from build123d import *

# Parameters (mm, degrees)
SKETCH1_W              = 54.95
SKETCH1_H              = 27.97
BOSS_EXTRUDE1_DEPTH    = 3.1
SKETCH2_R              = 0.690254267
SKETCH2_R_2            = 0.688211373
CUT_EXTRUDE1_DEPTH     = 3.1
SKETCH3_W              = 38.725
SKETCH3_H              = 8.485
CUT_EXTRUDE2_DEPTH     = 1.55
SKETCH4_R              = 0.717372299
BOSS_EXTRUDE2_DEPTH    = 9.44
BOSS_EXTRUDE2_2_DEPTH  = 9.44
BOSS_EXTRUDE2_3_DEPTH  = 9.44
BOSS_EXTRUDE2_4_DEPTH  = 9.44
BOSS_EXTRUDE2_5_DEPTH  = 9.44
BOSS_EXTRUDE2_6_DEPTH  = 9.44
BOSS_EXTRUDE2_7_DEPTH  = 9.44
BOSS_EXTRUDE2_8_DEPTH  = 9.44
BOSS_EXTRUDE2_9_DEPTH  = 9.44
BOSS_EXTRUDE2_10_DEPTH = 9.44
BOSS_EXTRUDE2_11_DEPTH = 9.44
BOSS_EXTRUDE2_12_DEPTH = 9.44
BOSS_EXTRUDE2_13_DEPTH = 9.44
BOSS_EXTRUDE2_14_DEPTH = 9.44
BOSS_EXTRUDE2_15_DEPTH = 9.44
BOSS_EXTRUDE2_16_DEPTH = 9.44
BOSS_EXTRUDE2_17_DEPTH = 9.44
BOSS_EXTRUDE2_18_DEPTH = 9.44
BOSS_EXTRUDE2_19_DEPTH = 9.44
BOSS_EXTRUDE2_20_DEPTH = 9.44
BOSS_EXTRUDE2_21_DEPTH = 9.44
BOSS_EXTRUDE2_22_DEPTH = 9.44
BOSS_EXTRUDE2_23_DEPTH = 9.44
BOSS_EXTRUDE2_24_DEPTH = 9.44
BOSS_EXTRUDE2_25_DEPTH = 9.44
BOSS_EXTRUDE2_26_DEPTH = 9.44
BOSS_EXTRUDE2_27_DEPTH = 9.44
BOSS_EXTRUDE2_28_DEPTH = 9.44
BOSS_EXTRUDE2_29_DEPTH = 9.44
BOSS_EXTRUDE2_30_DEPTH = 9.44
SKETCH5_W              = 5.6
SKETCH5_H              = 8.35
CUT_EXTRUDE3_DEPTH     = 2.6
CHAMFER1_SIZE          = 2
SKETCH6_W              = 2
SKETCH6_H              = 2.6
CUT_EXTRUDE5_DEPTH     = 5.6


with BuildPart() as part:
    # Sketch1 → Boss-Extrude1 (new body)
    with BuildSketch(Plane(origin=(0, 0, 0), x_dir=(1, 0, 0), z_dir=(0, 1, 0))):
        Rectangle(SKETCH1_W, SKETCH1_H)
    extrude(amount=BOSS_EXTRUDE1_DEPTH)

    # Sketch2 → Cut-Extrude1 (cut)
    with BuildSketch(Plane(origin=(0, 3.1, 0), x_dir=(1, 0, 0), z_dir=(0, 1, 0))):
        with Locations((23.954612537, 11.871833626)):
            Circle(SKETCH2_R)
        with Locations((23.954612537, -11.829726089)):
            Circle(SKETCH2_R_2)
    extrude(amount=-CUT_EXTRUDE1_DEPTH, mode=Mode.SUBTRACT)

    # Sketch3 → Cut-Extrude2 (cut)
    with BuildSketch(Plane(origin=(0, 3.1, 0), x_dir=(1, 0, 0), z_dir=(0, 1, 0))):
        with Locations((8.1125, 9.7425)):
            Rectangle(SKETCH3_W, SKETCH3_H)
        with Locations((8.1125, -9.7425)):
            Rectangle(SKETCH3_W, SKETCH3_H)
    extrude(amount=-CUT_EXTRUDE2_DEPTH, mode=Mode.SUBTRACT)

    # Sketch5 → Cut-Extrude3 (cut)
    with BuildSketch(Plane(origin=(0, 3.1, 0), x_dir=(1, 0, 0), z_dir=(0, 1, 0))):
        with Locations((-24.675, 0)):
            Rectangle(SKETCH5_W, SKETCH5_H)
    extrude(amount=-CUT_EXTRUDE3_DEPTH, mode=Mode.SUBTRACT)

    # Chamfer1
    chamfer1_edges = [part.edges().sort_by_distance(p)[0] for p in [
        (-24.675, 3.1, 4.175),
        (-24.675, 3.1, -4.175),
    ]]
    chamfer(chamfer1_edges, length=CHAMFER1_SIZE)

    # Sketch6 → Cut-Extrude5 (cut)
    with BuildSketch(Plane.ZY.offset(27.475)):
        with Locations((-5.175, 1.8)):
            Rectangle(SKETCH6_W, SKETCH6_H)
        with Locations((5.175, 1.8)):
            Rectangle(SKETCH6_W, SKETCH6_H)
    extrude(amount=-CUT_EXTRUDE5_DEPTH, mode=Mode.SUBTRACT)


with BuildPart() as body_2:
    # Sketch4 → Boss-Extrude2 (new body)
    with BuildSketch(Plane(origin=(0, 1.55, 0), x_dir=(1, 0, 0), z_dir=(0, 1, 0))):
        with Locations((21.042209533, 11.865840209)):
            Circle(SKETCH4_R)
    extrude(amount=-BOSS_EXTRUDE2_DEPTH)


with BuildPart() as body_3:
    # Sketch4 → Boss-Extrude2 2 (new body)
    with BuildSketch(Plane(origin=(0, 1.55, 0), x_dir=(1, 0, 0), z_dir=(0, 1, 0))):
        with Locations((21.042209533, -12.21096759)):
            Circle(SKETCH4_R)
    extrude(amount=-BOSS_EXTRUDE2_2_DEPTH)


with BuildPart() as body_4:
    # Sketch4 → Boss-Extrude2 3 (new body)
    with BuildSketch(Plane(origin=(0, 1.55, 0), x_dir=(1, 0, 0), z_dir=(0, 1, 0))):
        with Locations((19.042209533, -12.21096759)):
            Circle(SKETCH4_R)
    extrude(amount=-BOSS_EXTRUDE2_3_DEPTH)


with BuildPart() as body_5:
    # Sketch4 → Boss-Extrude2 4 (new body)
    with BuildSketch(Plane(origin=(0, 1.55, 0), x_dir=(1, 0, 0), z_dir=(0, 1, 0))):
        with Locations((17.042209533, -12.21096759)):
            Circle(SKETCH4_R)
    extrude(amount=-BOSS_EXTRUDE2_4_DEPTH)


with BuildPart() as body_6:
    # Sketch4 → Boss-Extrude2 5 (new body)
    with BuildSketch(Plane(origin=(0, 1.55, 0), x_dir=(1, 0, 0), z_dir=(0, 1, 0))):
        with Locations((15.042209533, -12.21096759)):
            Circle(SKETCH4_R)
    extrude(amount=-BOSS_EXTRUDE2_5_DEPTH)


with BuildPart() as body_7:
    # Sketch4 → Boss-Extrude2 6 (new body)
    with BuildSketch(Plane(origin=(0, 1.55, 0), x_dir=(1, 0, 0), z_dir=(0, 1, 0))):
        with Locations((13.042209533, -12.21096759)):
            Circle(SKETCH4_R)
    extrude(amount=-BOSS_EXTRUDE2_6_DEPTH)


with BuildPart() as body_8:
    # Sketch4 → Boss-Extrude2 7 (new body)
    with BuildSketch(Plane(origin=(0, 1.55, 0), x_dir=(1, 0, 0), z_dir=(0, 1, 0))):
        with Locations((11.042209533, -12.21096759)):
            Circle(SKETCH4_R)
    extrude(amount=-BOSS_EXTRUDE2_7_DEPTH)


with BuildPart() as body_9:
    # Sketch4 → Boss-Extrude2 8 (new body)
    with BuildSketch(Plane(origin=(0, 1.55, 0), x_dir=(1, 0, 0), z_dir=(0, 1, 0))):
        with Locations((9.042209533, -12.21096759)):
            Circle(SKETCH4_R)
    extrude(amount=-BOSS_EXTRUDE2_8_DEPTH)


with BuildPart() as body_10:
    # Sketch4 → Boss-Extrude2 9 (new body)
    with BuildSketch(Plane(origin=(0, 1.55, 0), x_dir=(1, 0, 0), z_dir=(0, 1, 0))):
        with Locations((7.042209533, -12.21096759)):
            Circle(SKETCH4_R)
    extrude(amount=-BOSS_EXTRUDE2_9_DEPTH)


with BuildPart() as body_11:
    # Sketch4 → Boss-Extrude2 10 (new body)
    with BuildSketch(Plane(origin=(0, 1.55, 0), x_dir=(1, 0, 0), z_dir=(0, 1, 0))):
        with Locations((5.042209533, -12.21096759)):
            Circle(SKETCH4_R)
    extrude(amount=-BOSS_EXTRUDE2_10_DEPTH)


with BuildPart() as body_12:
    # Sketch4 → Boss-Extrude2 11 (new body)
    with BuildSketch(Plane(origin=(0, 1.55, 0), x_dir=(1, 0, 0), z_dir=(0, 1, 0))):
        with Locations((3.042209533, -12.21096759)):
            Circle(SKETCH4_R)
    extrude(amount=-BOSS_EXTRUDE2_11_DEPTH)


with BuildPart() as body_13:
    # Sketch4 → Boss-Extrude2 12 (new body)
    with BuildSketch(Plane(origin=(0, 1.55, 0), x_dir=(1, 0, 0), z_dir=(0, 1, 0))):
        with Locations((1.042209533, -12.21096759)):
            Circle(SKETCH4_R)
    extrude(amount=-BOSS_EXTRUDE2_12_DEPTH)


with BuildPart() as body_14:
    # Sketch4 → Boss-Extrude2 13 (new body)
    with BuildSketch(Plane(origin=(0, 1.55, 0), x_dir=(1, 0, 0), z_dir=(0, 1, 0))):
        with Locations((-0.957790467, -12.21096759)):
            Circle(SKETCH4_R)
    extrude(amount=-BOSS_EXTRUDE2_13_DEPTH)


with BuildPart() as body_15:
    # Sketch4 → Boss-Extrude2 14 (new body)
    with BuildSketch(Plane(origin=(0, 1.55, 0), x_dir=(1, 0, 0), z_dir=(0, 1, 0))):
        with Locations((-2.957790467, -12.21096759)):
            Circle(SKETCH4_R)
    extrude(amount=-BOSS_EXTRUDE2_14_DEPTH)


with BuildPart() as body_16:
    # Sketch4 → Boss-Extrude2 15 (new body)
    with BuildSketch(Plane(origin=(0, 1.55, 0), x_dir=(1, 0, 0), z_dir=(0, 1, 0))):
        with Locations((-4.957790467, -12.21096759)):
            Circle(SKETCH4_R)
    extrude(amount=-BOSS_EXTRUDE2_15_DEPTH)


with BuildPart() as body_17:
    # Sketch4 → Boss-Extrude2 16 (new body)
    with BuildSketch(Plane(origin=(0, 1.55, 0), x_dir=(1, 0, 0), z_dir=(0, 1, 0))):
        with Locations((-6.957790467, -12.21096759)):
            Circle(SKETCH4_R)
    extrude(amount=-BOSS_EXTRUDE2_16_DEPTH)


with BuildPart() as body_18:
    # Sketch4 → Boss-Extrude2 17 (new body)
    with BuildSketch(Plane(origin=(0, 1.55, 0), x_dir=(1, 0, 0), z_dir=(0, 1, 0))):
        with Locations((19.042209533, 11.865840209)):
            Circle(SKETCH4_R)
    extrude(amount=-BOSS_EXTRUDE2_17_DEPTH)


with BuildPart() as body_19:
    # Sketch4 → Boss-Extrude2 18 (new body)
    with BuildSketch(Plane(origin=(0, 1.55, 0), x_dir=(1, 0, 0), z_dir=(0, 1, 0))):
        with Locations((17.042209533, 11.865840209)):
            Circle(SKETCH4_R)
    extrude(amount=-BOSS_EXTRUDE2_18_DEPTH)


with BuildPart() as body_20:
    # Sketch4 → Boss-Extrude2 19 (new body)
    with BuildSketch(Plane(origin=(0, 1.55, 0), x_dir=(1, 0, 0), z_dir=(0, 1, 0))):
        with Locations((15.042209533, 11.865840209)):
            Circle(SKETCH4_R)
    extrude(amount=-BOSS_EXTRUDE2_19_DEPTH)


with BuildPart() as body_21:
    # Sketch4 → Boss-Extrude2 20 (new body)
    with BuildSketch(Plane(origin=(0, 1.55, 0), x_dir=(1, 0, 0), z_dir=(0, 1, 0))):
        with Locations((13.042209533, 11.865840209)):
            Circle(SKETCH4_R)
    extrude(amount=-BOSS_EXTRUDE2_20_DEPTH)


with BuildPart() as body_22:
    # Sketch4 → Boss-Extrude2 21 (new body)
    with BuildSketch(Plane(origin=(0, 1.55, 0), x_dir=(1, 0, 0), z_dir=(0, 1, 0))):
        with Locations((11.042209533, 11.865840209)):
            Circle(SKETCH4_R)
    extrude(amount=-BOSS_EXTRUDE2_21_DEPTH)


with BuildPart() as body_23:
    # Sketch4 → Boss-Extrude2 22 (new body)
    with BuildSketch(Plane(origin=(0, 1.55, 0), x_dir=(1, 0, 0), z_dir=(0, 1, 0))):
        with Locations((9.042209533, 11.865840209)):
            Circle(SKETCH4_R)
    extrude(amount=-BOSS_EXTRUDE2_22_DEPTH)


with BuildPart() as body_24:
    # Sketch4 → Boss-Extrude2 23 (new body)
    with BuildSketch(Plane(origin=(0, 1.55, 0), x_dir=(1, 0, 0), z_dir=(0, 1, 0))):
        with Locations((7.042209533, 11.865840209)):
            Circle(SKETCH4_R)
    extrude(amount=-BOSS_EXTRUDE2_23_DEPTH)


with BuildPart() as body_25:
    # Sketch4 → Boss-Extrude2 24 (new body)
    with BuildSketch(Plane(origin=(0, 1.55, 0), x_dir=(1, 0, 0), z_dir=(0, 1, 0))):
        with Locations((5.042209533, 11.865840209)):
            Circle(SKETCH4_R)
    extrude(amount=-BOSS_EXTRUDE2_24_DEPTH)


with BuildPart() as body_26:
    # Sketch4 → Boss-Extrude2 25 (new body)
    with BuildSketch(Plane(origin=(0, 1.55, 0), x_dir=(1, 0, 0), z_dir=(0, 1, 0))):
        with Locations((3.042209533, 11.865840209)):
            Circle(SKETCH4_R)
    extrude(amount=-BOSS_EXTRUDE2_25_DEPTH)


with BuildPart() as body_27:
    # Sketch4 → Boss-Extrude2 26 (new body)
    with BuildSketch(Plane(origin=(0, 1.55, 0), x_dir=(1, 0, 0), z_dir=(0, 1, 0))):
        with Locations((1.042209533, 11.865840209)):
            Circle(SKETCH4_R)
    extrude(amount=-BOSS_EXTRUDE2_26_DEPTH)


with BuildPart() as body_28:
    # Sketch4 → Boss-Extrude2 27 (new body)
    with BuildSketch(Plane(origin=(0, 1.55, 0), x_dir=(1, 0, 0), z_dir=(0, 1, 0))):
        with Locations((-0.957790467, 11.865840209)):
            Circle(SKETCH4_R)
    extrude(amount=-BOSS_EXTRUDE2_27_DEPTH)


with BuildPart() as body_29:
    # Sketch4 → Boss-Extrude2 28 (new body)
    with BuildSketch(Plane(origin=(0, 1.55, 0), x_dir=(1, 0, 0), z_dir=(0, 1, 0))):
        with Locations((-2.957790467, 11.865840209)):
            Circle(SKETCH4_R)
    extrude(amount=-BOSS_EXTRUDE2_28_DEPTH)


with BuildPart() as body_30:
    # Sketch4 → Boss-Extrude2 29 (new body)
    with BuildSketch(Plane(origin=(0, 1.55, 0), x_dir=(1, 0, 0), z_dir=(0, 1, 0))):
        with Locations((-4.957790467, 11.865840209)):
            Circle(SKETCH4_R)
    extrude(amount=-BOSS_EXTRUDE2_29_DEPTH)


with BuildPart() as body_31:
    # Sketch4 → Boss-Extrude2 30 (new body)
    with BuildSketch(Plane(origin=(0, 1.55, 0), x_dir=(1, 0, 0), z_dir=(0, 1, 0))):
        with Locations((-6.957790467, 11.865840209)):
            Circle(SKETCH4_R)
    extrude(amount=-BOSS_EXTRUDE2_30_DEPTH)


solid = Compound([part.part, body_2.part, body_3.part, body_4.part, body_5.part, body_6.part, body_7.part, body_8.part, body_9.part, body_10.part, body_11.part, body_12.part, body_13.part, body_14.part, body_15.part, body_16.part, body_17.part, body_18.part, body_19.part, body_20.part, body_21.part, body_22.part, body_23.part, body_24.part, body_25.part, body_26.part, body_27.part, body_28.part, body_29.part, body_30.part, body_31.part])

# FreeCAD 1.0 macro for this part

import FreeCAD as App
import Part
import Sketcher

V = App.Vector


def edges_at(feature, points):
    """Names of the edges that pass closest to the given points."""
    edges = feature.Shape.Edges
    near = lambda p: min(range(len(edges)), key=lambda i: edges[i].distToShape(Part.Vertex(*p))[0])
    return sorted({f"Edge{near(p) + 1}" for p in points})

doc = App.newDocument("Part")
params = doc.addObject("Spreadsheet::Sheet", "Params")
for row, (alias, value) in enumerate([
    ("sketch1_width", "54.95 mm"),
    ("sketch1_height", "27.97 mm"),
    ("pad1_length", "3.1 mm"),
    ("pocket1_length", "3.1 mm"),
    ("pocket2_length", "1.55 mm"),
    ("sketch4_width", "5.6 mm"),
    ("sketch4_height", "8.35 mm"),
    ("pocket3_length", "2.6 mm"),
    ("chamfer_size", "2 mm"),
    ("sketch5_height", "2 mm"),
    ("sketch5_width", "2.6 mm"),
    ("pocket4_length", "5.6 mm"),
    ("pad2_length", "9.44 mm"),
    ("pad3_length", "9.44 mm"),
    ("pad4_length", "9.44 mm"),
    ("pad5_length", "9.44 mm"),
    ("pad6_length", "9.44 mm"),
    ("pad7_length", "9.44 mm"),
    ("pad8_length", "9.44 mm"),
    ("pad9_length", "9.44 mm"),
    ("pad10_length", "9.44 mm"),
    ("pad11_length", "9.44 mm"),
    ("pad12_length", "9.44 mm"),
    ("pad13_length", "9.44 mm"),
    ("pad14_length", "9.44 mm"),
    ("pad15_length", "9.44 mm"),
    ("pad16_length", "9.44 mm"),
    ("pad17_length", "9.44 mm"),
    ("pad18_length", "9.44 mm"),
    ("pad19_length", "9.44 mm"),
    ("pad20_length", "9.44 mm"),
    ("pad21_length", "9.44 mm"),
    ("pad22_length", "9.44 mm"),
    ("pad23_length", "9.44 mm"),
    ("pad24_length", "9.44 mm"),
    ("pad25_length", "9.44 mm"),
    ("pad26_length", "9.44 mm"),
    ("pad27_length", "9.44 mm"),
    ("pad28_length", "9.44 mm"),
    ("pad29_length", "9.44 mm"),
    ("pad30_length", "9.44 mm"),
    ("pad31_length", "9.44 mm"),
], start=1):
    params.set(f"A{row}", alias)
    params.set(f"B{row}", "=" + value)
    params.setAlias(f"B{row}", alias)

body = doc.addObject("PartDesign::Body", "Body")

# Sketch on XZ plane
sketch1 = body.newObject("Sketcher::SketchObject", "Sketch")
sketch1.AttachmentSupport = (doc.getObject("XZ_Plane"), [""])
sketch1.MapMode = "FlatFace"
sketch1.addGeometry([
    Part.LineSegment(V(-27.475, -13.985, 0), V(-27.475, 13.985, 0)),
    Part.LineSegment(V(-27.475, 13.985, 0), V(27.475, 13.985, 0)),
    Part.LineSegment(V(27.475, 13.985, 0), V(27.475, -13.985, 0)),
    Part.LineSegment(V(27.475, -13.985, 0), V(-27.475, -13.985, 0)),
], False)
sketch1.addConstraint([
    Sketcher.Constraint("Coincident", 0, 2, 1, 1),
    Sketcher.Constraint("Coincident", 1, 2, 2, 1),
    Sketcher.Constraint("Coincident", 2, 2, 3, 1),
    Sketcher.Constraint("Coincident", 3, 2, 0, 1),
    Sketcher.Constraint("Vertical", 0),
    Sketcher.Constraint("Horizontal", 1),
    Sketcher.Constraint("Vertical", 2),
    Sketcher.Constraint("Horizontal", 3),
    Sketcher.Constraint("Symmetric", 0, 2, 2, 2, -1, 1),
    Sketcher.Constraint("DistanceX", 1, 1, 1, 2, 54.95),
    Sketcher.Constraint("DistanceY", 0, 1, 0, 2, 27.97),
])
sketch1.setExpression("Constraints[9]", "Params.sketch1_width")
sketch1.setExpression("Constraints[10]", "Params.sketch1_height")
pad1 = body.newObject("PartDesign::Pad", "Pad")
pad1.Profile = sketch1
pad1.setExpression("Length", "Params.pad1_length")
pad1.Reversed = True

# Sketch on XZ plane
sketch2 = body.newObject("Sketcher::SketchObject", "Sketch001")
sketch2.AttachmentSupport = (doc.getObject("XZ_Plane"), [""])
sketch2.MapMode = "FlatFace"
sketch2.AttachmentOffset = App.Placement(V(0, 0, -3.1), App.Rotation())
sketch2.addGeometry([
    Part.Circle(V(23.954613, -11.871834, 0), V(0, 0, 1), 0.690254),
    Part.Circle(V(23.954613, 11.829726, 0), V(0, 0, 1), 0.688211),
], False)
sketch2.addConstraint([
    Sketcher.Constraint("Vertical", 0, 3, 1, 3),
    Sketcher.Constraint("Diameter", 0, 1.380509),
    Sketcher.Constraint("Diameter", 1, 1.376423),
    Sketcher.Constraint("DistanceY", 0, 3, 1, 3, 23.70156),
    Sketcher.Constraint("DistanceX", -1, 1, 0, 3, 23.954613),
    Sketcher.Constraint("DistanceY", 0, 3, -1, 1, 11.871834),
])
pocket1 = body.newObject("PartDesign::Pocket", "Pocket")
pocket1.Profile = sketch2
pocket1.setExpression("Length", "Params.pocket1_length")
pocket1.Reversed = True

# Sketch on XZ plane
sketch3 = body.newObject("Sketcher::SketchObject", "Sketch002")
sketch3.AttachmentSupport = (doc.getObject("XZ_Plane"), [""])
sketch3.MapMode = "FlatFace"
sketch3.AttachmentOffset = App.Placement(V(0, 0, -3.1), App.Rotation())
sketch3.addGeometry([
    Part.LineSegment(V(-11.25, -13.985, 0), V(-11.25, -5.5, 0)),  # 0
    Part.LineSegment(V(-11.25, -5.5, 0), V(27.475, -5.5, 0)),  # 1
    Part.LineSegment(V(27.475, -5.5, 0), V(27.475, -13.985, 0)),  # 2
    Part.LineSegment(V(27.475, -13.985, 0), V(-11.25, -13.985, 0)),  # 3
    Part.LineSegment(V(-11.25, 5.5, 0), V(-11.25, 13.985, 0)),  # 4
    Part.LineSegment(V(-11.25, 13.985, 0), V(27.475, 13.985, 0)),  # 5
    Part.LineSegment(V(27.475, 13.985, 0), V(27.475, 5.5, 0)),  # 6
    Part.LineSegment(V(27.475, 5.5, 0), V(-11.25, 5.5, 0)),  # 7
], False)
sketch3.addConstraint([
    Sketcher.Constraint("Coincident", 0, 2, 1, 1),
    Sketcher.Constraint("Coincident", 1, 2, 2, 1),
    Sketcher.Constraint("Coincident", 2, 2, 3, 1),
    Sketcher.Constraint("Coincident", 3, 2, 0, 1),
    Sketcher.Constraint("Coincident", 4, 2, 5, 1),
    Sketcher.Constraint("Coincident", 5, 2, 6, 1),
    Sketcher.Constraint("Coincident", 6, 2, 7, 1),
    Sketcher.Constraint("Coincident", 7, 2, 4, 1),
    Sketcher.Constraint("Vertical", 0),
    Sketcher.Constraint("Horizontal", 1),
    Sketcher.Constraint("Vertical", 2),
    Sketcher.Constraint("Horizontal", 3),
    Sketcher.Constraint("Vertical", 4),
    Sketcher.Constraint("Horizontal", 5),
    Sketcher.Constraint("Vertical", 6),
    Sketcher.Constraint("Horizontal", 7),
    Sketcher.Constraint("Symmetric", 3, 2, 4, 2, -1),
    Sketcher.Constraint("Symmetric", 1, 2, 6, 2, -1),
    Sketcher.Constraint("DistanceY", 1, 2, 6, 2, 11.0),
    Sketcher.Constraint("DistanceX", 1, 1, 1, 2, 38.725),
    Sketcher.Constraint("DistanceY", 0, 1, 0, 2, 8.485),
    Sketcher.Constraint("DistanceX", 0, 2, -1, 1, 11.25),
])
pocket2 = body.newObject("PartDesign::Pocket", "Pocket001")
pocket2.Profile = sketch3
pocket2.setExpression("Length", "Params.pocket2_length")
pocket2.Reversed = True

# Sketch on XZ plane
sketch4 = body.newObject("Sketcher::SketchObject", "Sketch003")
sketch4.AttachmentSupport = (doc.getObject("XZ_Plane"), [""])
sketch4.MapMode = "FlatFace"
sketch4.AttachmentOffset = App.Placement(V(0, 0, -3.1), App.Rotation())
sketch4.addGeometry([
    Part.LineSegment(V(-27.475, -4.175, 0), V(-27.475, 4.175, 0)),
    Part.LineSegment(V(-27.475, 4.175, 0), V(-21.875, 4.175, 0)),
    Part.LineSegment(V(-21.875, 4.175, 0), V(-21.875, -4.175, 0)),
    Part.LineSegment(V(-21.875, -4.175, 0), V(-27.475, -4.175, 0)),
], False)
sketch4.addConstraint([
    Sketcher.Constraint("Coincident", 0, 2, 1, 1),
    Sketcher.Constraint("Coincident", 1, 2, 2, 1),
    Sketcher.Constraint("Coincident", 2, 2, 3, 1),
    Sketcher.Constraint("Coincident", 3, 2, 0, 1),
    Sketcher.Constraint("Vertical", 0),
    Sketcher.Constraint("Horizontal", 1),
    Sketcher.Constraint("Vertical", 2),
    Sketcher.Constraint("Horizontal", 3),
    Sketcher.Constraint("DistanceX", 1, 1, 1, 2, 5.6),
    Sketcher.Constraint("DistanceY", 0, 1, 0, 2, 8.35),
    Sketcher.Constraint("DistanceX", 0, 2, -1, 1, 27.475),
    Sketcher.Constraint("DistanceY", -1, 1, 0, 2, 4.175),
])
sketch4.setExpression("Constraints[8]", "Params.sketch4_width")
sketch4.setExpression("Constraints[9]", "Params.sketch4_height")
pocket3 = body.newObject("PartDesign::Pocket", "Pocket002")
pocket3.Profile = sketch4
pocket3.setExpression("Length", "Params.pocket3_length")
pocket3.Reversed = True
doc.recompute()

chamfer = body.newObject("PartDesign::Chamfer", "Chamfer")
chamfer.Base = (pocket3, edges_at(pocket3, [(-24.675, 3.1, 4.175), (-24.675, 3.1, -4.175)]))
chamfer.setExpression("Size", "Params.chamfer_size")

# Sketch on YZ plane
sketch5 = body.newObject("Sketcher::SketchObject", "Sketch004")
sketch5.AttachmentSupport = (doc.getObject("YZ_Plane"), [""])
sketch5.MapMode = "FlatFace"
sketch5.AttachmentOffset = App.Placement(V(0, 0, -27.475), App.Rotation())
sketch5.addGeometry([
    Part.LineSegment(V(3.1, -6.175, 0), V(0.5, -6.175, 0)),  # 0
    Part.LineSegment(V(0.5, -6.175, 0), V(0.5, -4.175, 0)),  # 1
    Part.LineSegment(V(0.5, -4.175, 0), V(3.1, -4.175, 0)),  # 2
    Part.LineSegment(V(3.1, -4.175, 0), V(3.1, -6.175, 0)),  # 3
    Part.LineSegment(V(3.1, 4.175, 0), V(0.5, 4.175, 0)),  # 4
    Part.LineSegment(V(0.5, 4.175, 0), V(0.5, 6.175, 0)),  # 5
    Part.LineSegment(V(0.5, 6.175, 0), V(3.1, 6.175, 0)),  # 6
    Part.LineSegment(V(3.1, 6.175, 0), V(3.1, 4.175, 0)),  # 7
], False)
sketch5.addConstraint([
    Sketcher.Constraint("Coincident", 0, 2, 1, 1),
    Sketcher.Constraint("Coincident", 1, 2, 2, 1),
    Sketcher.Constraint("Coincident", 2, 2, 3, 1),
    Sketcher.Constraint("Coincident", 3, 2, 0, 1),
    Sketcher.Constraint("Coincident", 4, 2, 5, 1),
    Sketcher.Constraint("Coincident", 5, 2, 6, 1),
    Sketcher.Constraint("Coincident", 6, 2, 7, 1),
    Sketcher.Constraint("Coincident", 7, 2, 4, 1),
    Sketcher.Constraint("Horizontal", 0),
    Sketcher.Constraint("Vertical", 1),
    Sketcher.Constraint("Horizontal", 2),
    Sketcher.Constraint("Vertical", 3),
    Sketcher.Constraint("Horizontal", 4),
    Sketcher.Constraint("Vertical", 5),
    Sketcher.Constraint("Horizontal", 6),
    Sketcher.Constraint("Vertical", 7),
    Sketcher.Constraint("Symmetric", 1, 2, 4, 2, -1),
    Sketcher.Constraint("Symmetric", 3, 2, 6, 2, -1),
    Sketcher.Constraint("DistanceY", 1, 1, 1, 2, 2.0),
    Sketcher.Constraint("DistanceX", 0, 2, 0, 1, 2.6),
    Sketcher.Constraint("DistanceX", -1, 1, 0, 2, 0.5),
    Sketcher.Constraint("DistanceY", 1, 2, 4, 2, 8.35),
])
sketch5.setExpression("Constraints[18]", "Params.sketch5_height")
sketch5.setExpression("Constraints[19]", "Params.sketch5_width")
pocket4 = body.newObject("PartDesign::Pocket", "Pocket003")
pocket4.Profile = sketch5
pocket4.setExpression("Length", "Params.pocket4_length")
pocket4.Reversed = True
body2 = doc.addObject("PartDesign::Body", "Body001")

# Sketch on XZ plane
sketch6 = body2.newObject("Sketcher::SketchObject", "Sketch005")
sketch6.AttachmentSupport = (doc.getObject("XZ_Plane001"), [""])
sketch6.MapMode = "FlatFace"
sketch6.AttachmentOffset = App.Placement(V(0, 0, -1.55), App.Rotation())
sketch6.addGeometry(Part.Circle(V(21.04221, -11.86584, 0), V(0, 0, 1), 0.717372), False)
sketch6.addConstraint([
    Sketcher.Constraint("Diameter", 0, 1.434745),
    Sketcher.Constraint("DistanceX", -1, 1, 0, 3, 21.04221),
    Sketcher.Constraint("DistanceY", 0, 3, -1, 1, 11.86584),
])
pad2 = body2.newObject("PartDesign::Pad", "Pad001")
pad2.Profile = sketch6
pad2.setExpression("Length", "Params.pad2_length")
body3 = doc.addObject("PartDesign::Body", "Body002")

# Sketch on XZ plane
sketch7 = body3.newObject("Sketcher::SketchObject", "Sketch006")
sketch7.AttachmentSupport = (doc.getObject("XZ_Plane002"), [""])
sketch7.MapMode = "FlatFace"
sketch7.AttachmentOffset = App.Placement(V(0, 0, -1.55), App.Rotation())
sketch7.addGeometry(Part.Circle(V(21.04221, 12.210968, 0), V(0, 0, 1), 0.717372), False)
sketch7.addConstraint([
    Sketcher.Constraint("Diameter", 0, 1.434745),
    Sketcher.Constraint("DistanceX", -1, 1, 0, 3, 21.04221),
    Sketcher.Constraint("DistanceY", -1, 1, 0, 3, 12.210968),
])
pad3 = body3.newObject("PartDesign::Pad", "Pad002")
pad3.Profile = sketch7
pad3.setExpression("Length", "Params.pad3_length")
body4 = doc.addObject("PartDesign::Body", "Body003")

# Sketch on XZ plane
sketch8 = body4.newObject("Sketcher::SketchObject", "Sketch007")
sketch8.AttachmentSupport = (doc.getObject("XZ_Plane003"), [""])
sketch8.MapMode = "FlatFace"
sketch8.AttachmentOffset = App.Placement(V(0, 0, -1.55), App.Rotation())
sketch8.addGeometry(Part.Circle(V(19.04221, 12.210968, 0), V(0, 0, 1), 0.717372), False)
sketch8.addConstraint([
    Sketcher.Constraint("Diameter", 0, 1.434745),
    Sketcher.Constraint("DistanceX", -1, 1, 0, 3, 19.04221),
    Sketcher.Constraint("DistanceY", -1, 1, 0, 3, 12.210968),
])
pad4 = body4.newObject("PartDesign::Pad", "Pad003")
pad4.Profile = sketch8
pad4.setExpression("Length", "Params.pad4_length")
body5 = doc.addObject("PartDesign::Body", "Body004")

# Sketch on XZ plane
sketch9 = body5.newObject("Sketcher::SketchObject", "Sketch008")
sketch9.AttachmentSupport = (doc.getObject("XZ_Plane004"), [""])
sketch9.MapMode = "FlatFace"
sketch9.AttachmentOffset = App.Placement(V(0, 0, -1.55), App.Rotation())
sketch9.addGeometry(Part.Circle(V(17.04221, 12.210968, 0), V(0, 0, 1), 0.717372), False)
sketch9.addConstraint([
    Sketcher.Constraint("Diameter", 0, 1.434745),
    Sketcher.Constraint("DistanceX", -1, 1, 0, 3, 17.04221),
    Sketcher.Constraint("DistanceY", -1, 1, 0, 3, 12.210968),
])
pad5 = body5.newObject("PartDesign::Pad", "Pad004")
pad5.Profile = sketch9
pad5.setExpression("Length", "Params.pad5_length")
body6 = doc.addObject("PartDesign::Body", "Body005")

# Sketch on XZ plane
sketch10 = body6.newObject("Sketcher::SketchObject", "Sketch009")
sketch10.AttachmentSupport = (doc.getObject("XZ_Plane005"), [""])
sketch10.MapMode = "FlatFace"
sketch10.AttachmentOffset = App.Placement(V(0, 0, -1.55), App.Rotation())
sketch10.addGeometry(Part.Circle(V(15.04221, 12.210968, 0), V(0, 0, 1), 0.717372), False)
sketch10.addConstraint([
    Sketcher.Constraint("Diameter", 0, 1.434745),
    Sketcher.Constraint("DistanceX", -1, 1, 0, 3, 15.04221),
    Sketcher.Constraint("DistanceY", -1, 1, 0, 3, 12.210968),
])
pad6 = body6.newObject("PartDesign::Pad", "Pad005")
pad6.Profile = sketch10
pad6.setExpression("Length", "Params.pad6_length")
body7 = doc.addObject("PartDesign::Body", "Body006")

# Sketch on XZ plane
sketch11 = body7.newObject("Sketcher::SketchObject", "Sketch010")
sketch11.AttachmentSupport = (doc.getObject("XZ_Plane006"), [""])
sketch11.MapMode = "FlatFace"
sketch11.AttachmentOffset = App.Placement(V(0, 0, -1.55), App.Rotation())
sketch11.addGeometry(Part.Circle(V(13.04221, 12.210968, 0), V(0, 0, 1), 0.717372), False)
sketch11.addConstraint([
    Sketcher.Constraint("Diameter", 0, 1.434745),
    Sketcher.Constraint("DistanceX", -1, 1, 0, 3, 13.04221),
    Sketcher.Constraint("DistanceY", -1, 1, 0, 3, 12.210968),
])
pad7 = body7.newObject("PartDesign::Pad", "Pad006")
pad7.Profile = sketch11
pad7.setExpression("Length", "Params.pad7_length")
body8 = doc.addObject("PartDesign::Body", "Body007")

# Sketch on XZ plane
sketch12 = body8.newObject("Sketcher::SketchObject", "Sketch011")
sketch12.AttachmentSupport = (doc.getObject("XZ_Plane007"), [""])
sketch12.MapMode = "FlatFace"
sketch12.AttachmentOffset = App.Placement(V(0, 0, -1.55), App.Rotation())
sketch12.addGeometry(Part.Circle(V(11.04221, 12.210968, 0), V(0, 0, 1), 0.717372), False)
sketch12.addConstraint([
    Sketcher.Constraint("Diameter", 0, 1.434745),
    Sketcher.Constraint("DistanceX", -1, 1, 0, 3, 11.04221),
    Sketcher.Constraint("DistanceY", -1, 1, 0, 3, 12.210968),
])
pad8 = body8.newObject("PartDesign::Pad", "Pad007")
pad8.Profile = sketch12
pad8.setExpression("Length", "Params.pad8_length")
body9 = doc.addObject("PartDesign::Body", "Body008")

# Sketch on XZ plane
sketch13 = body9.newObject("Sketcher::SketchObject", "Sketch012")
sketch13.AttachmentSupport = (doc.getObject("XZ_Plane008"), [""])
sketch13.MapMode = "FlatFace"
sketch13.AttachmentOffset = App.Placement(V(0, 0, -1.55), App.Rotation())
sketch13.addGeometry(Part.Circle(V(9.04221, 12.210968, 0), V(0, 0, 1), 0.717372), False)
sketch13.addConstraint([
    Sketcher.Constraint("Diameter", 0, 1.434745),
    Sketcher.Constraint("DistanceX", -1, 1, 0, 3, 9.04221),
    Sketcher.Constraint("DistanceY", -1, 1, 0, 3, 12.210968),
])
pad9 = body9.newObject("PartDesign::Pad", "Pad008")
pad9.Profile = sketch13
pad9.setExpression("Length", "Params.pad9_length")
body10 = doc.addObject("PartDesign::Body", "Body009")

# Sketch on XZ plane
sketch14 = body10.newObject("Sketcher::SketchObject", "Sketch013")
sketch14.AttachmentSupport = (doc.getObject("XZ_Plane009"), [""])
sketch14.MapMode = "FlatFace"
sketch14.AttachmentOffset = App.Placement(V(0, 0, -1.55), App.Rotation())
sketch14.addGeometry(Part.Circle(V(7.04221, 12.210968, 0), V(0, 0, 1), 0.717372), False)
sketch14.addConstraint([
    Sketcher.Constraint("Diameter", 0, 1.434745),
    Sketcher.Constraint("DistanceX", -1, 1, 0, 3, 7.04221),
    Sketcher.Constraint("DistanceY", -1, 1, 0, 3, 12.210968),
])
pad10 = body10.newObject("PartDesign::Pad", "Pad009")
pad10.Profile = sketch14
pad10.setExpression("Length", "Params.pad10_length")
body11 = doc.addObject("PartDesign::Body", "Body010")

# Sketch on XZ plane
sketch15 = body11.newObject("Sketcher::SketchObject", "Sketch014")
sketch15.AttachmentSupport = (doc.getObject("XZ_Plane010"), [""])
sketch15.MapMode = "FlatFace"
sketch15.AttachmentOffset = App.Placement(V(0, 0, -1.55), App.Rotation())
sketch15.addGeometry(Part.Circle(V(5.04221, 12.210968, 0), V(0, 0, 1), 0.717372), False)
sketch15.addConstraint([
    Sketcher.Constraint("Diameter", 0, 1.434745),
    Sketcher.Constraint("DistanceX", -1, 1, 0, 3, 5.04221),
    Sketcher.Constraint("DistanceY", -1, 1, 0, 3, 12.210968),
])
pad11 = body11.newObject("PartDesign::Pad", "Pad010")
pad11.Profile = sketch15
pad11.setExpression("Length", "Params.pad11_length")
body12 = doc.addObject("PartDesign::Body", "Body011")

# Sketch on XZ plane
sketch16 = body12.newObject("Sketcher::SketchObject", "Sketch015")
sketch16.AttachmentSupport = (doc.getObject("XZ_Plane011"), [""])
sketch16.MapMode = "FlatFace"
sketch16.AttachmentOffset = App.Placement(V(0, 0, -1.55), App.Rotation())
sketch16.addGeometry(Part.Circle(V(3.04221, 12.210968, 0), V(0, 0, 1), 0.717372), False)
sketch16.addConstraint([
    Sketcher.Constraint("Diameter", 0, 1.434745),
    Sketcher.Constraint("DistanceX", -1, 1, 0, 3, 3.04221),
    Sketcher.Constraint("DistanceY", -1, 1, 0, 3, 12.210968),
])
pad12 = body12.newObject("PartDesign::Pad", "Pad011")
pad12.Profile = sketch16
pad12.setExpression("Length", "Params.pad12_length")
body13 = doc.addObject("PartDesign::Body", "Body012")

# Sketch on XZ plane
sketch17 = body13.newObject("Sketcher::SketchObject", "Sketch016")
sketch17.AttachmentSupport = (doc.getObject("XZ_Plane012"), [""])
sketch17.MapMode = "FlatFace"
sketch17.AttachmentOffset = App.Placement(V(0, 0, -1.55), App.Rotation())
sketch17.addGeometry(Part.Circle(V(1.04221, 12.210968, 0), V(0, 0, 1), 0.717372), False)
sketch17.addConstraint([
    Sketcher.Constraint("Diameter", 0, 1.434745),
    Sketcher.Constraint("DistanceX", -1, 1, 0, 3, 1.04221),
    Sketcher.Constraint("DistanceY", -1, 1, 0, 3, 12.210968),
])
pad13 = body13.newObject("PartDesign::Pad", "Pad012")
pad13.Profile = sketch17
pad13.setExpression("Length", "Params.pad13_length")
body14 = doc.addObject("PartDesign::Body", "Body013")

# Sketch on XZ plane
sketch18 = body14.newObject("Sketcher::SketchObject", "Sketch017")
sketch18.AttachmentSupport = (doc.getObject("XZ_Plane013"), [""])
sketch18.MapMode = "FlatFace"
sketch18.AttachmentOffset = App.Placement(V(0, 0, -1.55), App.Rotation())
sketch18.addGeometry(Part.Circle(V(-0.95779, 12.210968, 0), V(0, 0, 1), 0.717372), False)
sketch18.addConstraint([
    Sketcher.Constraint("Diameter", 0, 1.434745),
    Sketcher.Constraint("DistanceX", 0, 3, -1, 1, 0.95779),
    Sketcher.Constraint("DistanceY", -1, 1, 0, 3, 12.210968),
])
pad14 = body14.newObject("PartDesign::Pad", "Pad013")
pad14.Profile = sketch18
pad14.setExpression("Length", "Params.pad14_length")
body15 = doc.addObject("PartDesign::Body", "Body014")

# Sketch on XZ plane
sketch19 = body15.newObject("Sketcher::SketchObject", "Sketch018")
sketch19.AttachmentSupport = (doc.getObject("XZ_Plane014"), [""])
sketch19.MapMode = "FlatFace"
sketch19.AttachmentOffset = App.Placement(V(0, 0, -1.55), App.Rotation())
sketch19.addGeometry(Part.Circle(V(-2.95779, 12.210968, 0), V(0, 0, 1), 0.717372), False)
sketch19.addConstraint([
    Sketcher.Constraint("Diameter", 0, 1.434745),
    Sketcher.Constraint("DistanceX", 0, 3, -1, 1, 2.95779),
    Sketcher.Constraint("DistanceY", -1, 1, 0, 3, 12.210968),
])
pad15 = body15.newObject("PartDesign::Pad", "Pad014")
pad15.Profile = sketch19
pad15.setExpression("Length", "Params.pad15_length")
body16 = doc.addObject("PartDesign::Body", "Body015")

# Sketch on XZ plane
sketch20 = body16.newObject("Sketcher::SketchObject", "Sketch019")
sketch20.AttachmentSupport = (doc.getObject("XZ_Plane015"), [""])
sketch20.MapMode = "FlatFace"
sketch20.AttachmentOffset = App.Placement(V(0, 0, -1.55), App.Rotation())
sketch20.addGeometry(Part.Circle(V(-4.95779, 12.210968, 0), V(0, 0, 1), 0.717372), False)
sketch20.addConstraint([
    Sketcher.Constraint("Diameter", 0, 1.434745),
    Sketcher.Constraint("DistanceX", 0, 3, -1, 1, 4.95779),
    Sketcher.Constraint("DistanceY", -1, 1, 0, 3, 12.210968),
])
pad16 = body16.newObject("PartDesign::Pad", "Pad015")
pad16.Profile = sketch20
pad16.setExpression("Length", "Params.pad16_length")
body17 = doc.addObject("PartDesign::Body", "Body016")

# Sketch on XZ plane
sketch21 = body17.newObject("Sketcher::SketchObject", "Sketch020")
sketch21.AttachmentSupport = (doc.getObject("XZ_Plane016"), [""])
sketch21.MapMode = "FlatFace"
sketch21.AttachmentOffset = App.Placement(V(0, 0, -1.55), App.Rotation())
sketch21.addGeometry(Part.Circle(V(-6.95779, 12.210968, 0), V(0, 0, 1), 0.717372), False)
sketch21.addConstraint([
    Sketcher.Constraint("Diameter", 0, 1.434745),
    Sketcher.Constraint("DistanceX", 0, 3, -1, 1, 6.95779),
    Sketcher.Constraint("DistanceY", -1, 1, 0, 3, 12.210968),
])
pad17 = body17.newObject("PartDesign::Pad", "Pad016")
pad17.Profile = sketch21
pad17.setExpression("Length", "Params.pad17_length")
body18 = doc.addObject("PartDesign::Body", "Body017")

# Sketch on XZ plane
sketch22 = body18.newObject("Sketcher::SketchObject", "Sketch021")
sketch22.AttachmentSupport = (doc.getObject("XZ_Plane017"), [""])
sketch22.MapMode = "FlatFace"
sketch22.AttachmentOffset = App.Placement(V(0, 0, -1.55), App.Rotation())
sketch22.addGeometry(Part.Circle(V(19.04221, -11.86584, 0), V(0, 0, 1), 0.717372), False)
sketch22.addConstraint([
    Sketcher.Constraint("Diameter", 0, 1.434745),
    Sketcher.Constraint("DistanceX", -1, 1, 0, 3, 19.04221),
    Sketcher.Constraint("DistanceY", 0, 3, -1, 1, 11.86584),
])
pad18 = body18.newObject("PartDesign::Pad", "Pad017")
pad18.Profile = sketch22
pad18.setExpression("Length", "Params.pad18_length")
body19 = doc.addObject("PartDesign::Body", "Body018")

# Sketch on XZ plane
sketch23 = body19.newObject("Sketcher::SketchObject", "Sketch022")
sketch23.AttachmentSupport = (doc.getObject("XZ_Plane018"), [""])
sketch23.MapMode = "FlatFace"
sketch23.AttachmentOffset = App.Placement(V(0, 0, -1.55), App.Rotation())
sketch23.addGeometry(Part.Circle(V(17.04221, -11.86584, 0), V(0, 0, 1), 0.717372), False)
sketch23.addConstraint([
    Sketcher.Constraint("Diameter", 0, 1.434745),
    Sketcher.Constraint("DistanceX", -1, 1, 0, 3, 17.04221),
    Sketcher.Constraint("DistanceY", 0, 3, -1, 1, 11.86584),
])
pad19 = body19.newObject("PartDesign::Pad", "Pad018")
pad19.Profile = sketch23
pad19.setExpression("Length", "Params.pad19_length")
body20 = doc.addObject("PartDesign::Body", "Body019")

# Sketch on XZ plane
sketch24 = body20.newObject("Sketcher::SketchObject", "Sketch023")
sketch24.AttachmentSupport = (doc.getObject("XZ_Plane019"), [""])
sketch24.MapMode = "FlatFace"
sketch24.AttachmentOffset = App.Placement(V(0, 0, -1.55), App.Rotation())
sketch24.addGeometry(Part.Circle(V(15.04221, -11.86584, 0), V(0, 0, 1), 0.717372), False)
sketch24.addConstraint([
    Sketcher.Constraint("Diameter", 0, 1.434745),
    Sketcher.Constraint("DistanceX", -1, 1, 0, 3, 15.04221),
    Sketcher.Constraint("DistanceY", 0, 3, -1, 1, 11.86584),
])
pad20 = body20.newObject("PartDesign::Pad", "Pad019")
pad20.Profile = sketch24
pad20.setExpression("Length", "Params.pad20_length")
body21 = doc.addObject("PartDesign::Body", "Body020")

# Sketch on XZ plane
sketch25 = body21.newObject("Sketcher::SketchObject", "Sketch024")
sketch25.AttachmentSupport = (doc.getObject("XZ_Plane020"), [""])
sketch25.MapMode = "FlatFace"
sketch25.AttachmentOffset = App.Placement(V(0, 0, -1.55), App.Rotation())
sketch25.addGeometry(Part.Circle(V(13.04221, -11.86584, 0), V(0, 0, 1), 0.717372), False)
sketch25.addConstraint([
    Sketcher.Constraint("Diameter", 0, 1.434745),
    Sketcher.Constraint("DistanceX", -1, 1, 0, 3, 13.04221),
    Sketcher.Constraint("DistanceY", 0, 3, -1, 1, 11.86584),
])
pad21 = body21.newObject("PartDesign::Pad", "Pad020")
pad21.Profile = sketch25
pad21.setExpression("Length", "Params.pad21_length")
body22 = doc.addObject("PartDesign::Body", "Body021")

# Sketch on XZ plane
sketch26 = body22.newObject("Sketcher::SketchObject", "Sketch025")
sketch26.AttachmentSupport = (doc.getObject("XZ_Plane021"), [""])
sketch26.MapMode = "FlatFace"
sketch26.AttachmentOffset = App.Placement(V(0, 0, -1.55), App.Rotation())
sketch26.addGeometry(Part.Circle(V(11.04221, -11.86584, 0), V(0, 0, 1), 0.717372), False)
sketch26.addConstraint([
    Sketcher.Constraint("Diameter", 0, 1.434745),
    Sketcher.Constraint("DistanceX", -1, 1, 0, 3, 11.04221),
    Sketcher.Constraint("DistanceY", 0, 3, -1, 1, 11.86584),
])
pad22 = body22.newObject("PartDesign::Pad", "Pad021")
pad22.Profile = sketch26
pad22.setExpression("Length", "Params.pad22_length")
body23 = doc.addObject("PartDesign::Body", "Body022")

# Sketch on XZ plane
sketch27 = body23.newObject("Sketcher::SketchObject", "Sketch026")
sketch27.AttachmentSupport = (doc.getObject("XZ_Plane022"), [""])
sketch27.MapMode = "FlatFace"
sketch27.AttachmentOffset = App.Placement(V(0, 0, -1.55), App.Rotation())
sketch27.addGeometry(Part.Circle(V(9.04221, -11.86584, 0), V(0, 0, 1), 0.717372), False)
sketch27.addConstraint([
    Sketcher.Constraint("Diameter", 0, 1.434745),
    Sketcher.Constraint("DistanceX", -1, 1, 0, 3, 9.04221),
    Sketcher.Constraint("DistanceY", 0, 3, -1, 1, 11.86584),
])
pad23 = body23.newObject("PartDesign::Pad", "Pad022")
pad23.Profile = sketch27
pad23.setExpression("Length", "Params.pad23_length")
body24 = doc.addObject("PartDesign::Body", "Body023")

# Sketch on XZ plane
sketch28 = body24.newObject("Sketcher::SketchObject", "Sketch027")
sketch28.AttachmentSupport = (doc.getObject("XZ_Plane023"), [""])
sketch28.MapMode = "FlatFace"
sketch28.AttachmentOffset = App.Placement(V(0, 0, -1.55), App.Rotation())
sketch28.addGeometry(Part.Circle(V(7.04221, -11.86584, 0), V(0, 0, 1), 0.717372), False)
sketch28.addConstraint([
    Sketcher.Constraint("Diameter", 0, 1.434745),
    Sketcher.Constraint("DistanceX", -1, 1, 0, 3, 7.04221),
    Sketcher.Constraint("DistanceY", 0, 3, -1, 1, 11.86584),
])
pad24 = body24.newObject("PartDesign::Pad", "Pad023")
pad24.Profile = sketch28
pad24.setExpression("Length", "Params.pad24_length")
body25 = doc.addObject("PartDesign::Body", "Body024")

# Sketch on XZ plane
sketch29 = body25.newObject("Sketcher::SketchObject", "Sketch028")
sketch29.AttachmentSupport = (doc.getObject("XZ_Plane024"), [""])
sketch29.MapMode = "FlatFace"
sketch29.AttachmentOffset = App.Placement(V(0, 0, -1.55), App.Rotation())
sketch29.addGeometry(Part.Circle(V(5.04221, -11.86584, 0), V(0, 0, 1), 0.717372), False)
sketch29.addConstraint([
    Sketcher.Constraint("Diameter", 0, 1.434745),
    Sketcher.Constraint("DistanceX", -1, 1, 0, 3, 5.04221),
    Sketcher.Constraint("DistanceY", 0, 3, -1, 1, 11.86584),
])
pad25 = body25.newObject("PartDesign::Pad", "Pad024")
pad25.Profile = sketch29
pad25.setExpression("Length", "Params.pad25_length")
body26 = doc.addObject("PartDesign::Body", "Body025")

# Sketch on XZ plane
sketch30 = body26.newObject("Sketcher::SketchObject", "Sketch029")
sketch30.AttachmentSupport = (doc.getObject("XZ_Plane025"), [""])
sketch30.MapMode = "FlatFace"
sketch30.AttachmentOffset = App.Placement(V(0, 0, -1.55), App.Rotation())
sketch30.addGeometry(Part.Circle(V(3.04221, -11.86584, 0), V(0, 0, 1), 0.717372), False)
sketch30.addConstraint([
    Sketcher.Constraint("Diameter", 0, 1.434745),
    Sketcher.Constraint("DistanceX", -1, 1, 0, 3, 3.04221),
    Sketcher.Constraint("DistanceY", 0, 3, -1, 1, 11.86584),
])
pad26 = body26.newObject("PartDesign::Pad", "Pad025")
pad26.Profile = sketch30
pad26.setExpression("Length", "Params.pad26_length")
body27 = doc.addObject("PartDesign::Body", "Body026")

# Sketch on XZ plane
sketch31 = body27.newObject("Sketcher::SketchObject", "Sketch030")
sketch31.AttachmentSupport = (doc.getObject("XZ_Plane026"), [""])
sketch31.MapMode = "FlatFace"
sketch31.AttachmentOffset = App.Placement(V(0, 0, -1.55), App.Rotation())
sketch31.addGeometry(Part.Circle(V(1.04221, -11.86584, 0), V(0, 0, 1), 0.717372), False)
sketch31.addConstraint([
    Sketcher.Constraint("Diameter", 0, 1.434745),
    Sketcher.Constraint("DistanceX", -1, 1, 0, 3, 1.04221),
    Sketcher.Constraint("DistanceY", 0, 3, -1, 1, 11.86584),
])
pad27 = body27.newObject("PartDesign::Pad", "Pad026")
pad27.Profile = sketch31
pad27.setExpression("Length", "Params.pad27_length")
body28 = doc.addObject("PartDesign::Body", "Body027")

# Sketch on XZ plane
sketch32 = body28.newObject("Sketcher::SketchObject", "Sketch031")
sketch32.AttachmentSupport = (doc.getObject("XZ_Plane027"), [""])
sketch32.MapMode = "FlatFace"
sketch32.AttachmentOffset = App.Placement(V(0, 0, -1.55), App.Rotation())
sketch32.addGeometry(Part.Circle(V(-0.95779, -11.86584, 0), V(0, 0, 1), 0.717372), False)
sketch32.addConstraint([
    Sketcher.Constraint("Diameter", 0, 1.434745),
    Sketcher.Constraint("DistanceX", 0, 3, -1, 1, 0.95779),
    Sketcher.Constraint("DistanceY", 0, 3, -1, 1, 11.86584),
])
pad28 = body28.newObject("PartDesign::Pad", "Pad027")
pad28.Profile = sketch32
pad28.setExpression("Length", "Params.pad28_length")
body29 = doc.addObject("PartDesign::Body", "Body028")

# Sketch on XZ plane
sketch33 = body29.newObject("Sketcher::SketchObject", "Sketch032")
sketch33.AttachmentSupport = (doc.getObject("XZ_Plane028"), [""])
sketch33.MapMode = "FlatFace"
sketch33.AttachmentOffset = App.Placement(V(0, 0, -1.55), App.Rotation())
sketch33.addGeometry(Part.Circle(V(-2.95779, -11.86584, 0), V(0, 0, 1), 0.717372), False)
sketch33.addConstraint([
    Sketcher.Constraint("Diameter", 0, 1.434745),
    Sketcher.Constraint("DistanceX", 0, 3, -1, 1, 2.95779),
    Sketcher.Constraint("DistanceY", 0, 3, -1, 1, 11.86584),
])
pad29 = body29.newObject("PartDesign::Pad", "Pad028")
pad29.Profile = sketch33
pad29.setExpression("Length", "Params.pad29_length")
body30 = doc.addObject("PartDesign::Body", "Body029")

# Sketch on XZ plane
sketch34 = body30.newObject("Sketcher::SketchObject", "Sketch033")
sketch34.AttachmentSupport = (doc.getObject("XZ_Plane029"), [""])
sketch34.MapMode = "FlatFace"
sketch34.AttachmentOffset = App.Placement(V(0, 0, -1.55), App.Rotation())
sketch34.addGeometry(Part.Circle(V(-4.95779, -11.86584, 0), V(0, 0, 1), 0.717372), False)
sketch34.addConstraint([
    Sketcher.Constraint("Diameter", 0, 1.434745),
    Sketcher.Constraint("DistanceX", 0, 3, -1, 1, 4.95779),
    Sketcher.Constraint("DistanceY", 0, 3, -1, 1, 11.86584),
])
pad30 = body30.newObject("PartDesign::Pad", "Pad029")
pad30.Profile = sketch34
pad30.setExpression("Length", "Params.pad30_length")
body31 = doc.addObject("PartDesign::Body", "Body030")

# Sketch on XZ plane
sketch35 = body31.newObject("Sketcher::SketchObject", "Sketch034")
sketch35.AttachmentSupport = (doc.getObject("XZ_Plane030"), [""])
sketch35.MapMode = "FlatFace"
sketch35.AttachmentOffset = App.Placement(V(0, 0, -1.55), App.Rotation())
sketch35.addGeometry(Part.Circle(V(-6.95779, -11.86584, 0), V(0, 0, 1), 0.717372), False)
sketch35.addConstraint([
    Sketcher.Constraint("Diameter", 0, 1.434745),
    Sketcher.Constraint("DistanceX", 0, 3, -1, 1, 6.95779),
    Sketcher.Constraint("DistanceY", 0, 3, -1, 1, 11.86584),
])
pad31 = body31.newObject("PartDesign::Pad", "Pad030")
pad31.Profile = sketch35
pad31.setExpression("Length", "Params.pad31_length")

doc.recompute()
